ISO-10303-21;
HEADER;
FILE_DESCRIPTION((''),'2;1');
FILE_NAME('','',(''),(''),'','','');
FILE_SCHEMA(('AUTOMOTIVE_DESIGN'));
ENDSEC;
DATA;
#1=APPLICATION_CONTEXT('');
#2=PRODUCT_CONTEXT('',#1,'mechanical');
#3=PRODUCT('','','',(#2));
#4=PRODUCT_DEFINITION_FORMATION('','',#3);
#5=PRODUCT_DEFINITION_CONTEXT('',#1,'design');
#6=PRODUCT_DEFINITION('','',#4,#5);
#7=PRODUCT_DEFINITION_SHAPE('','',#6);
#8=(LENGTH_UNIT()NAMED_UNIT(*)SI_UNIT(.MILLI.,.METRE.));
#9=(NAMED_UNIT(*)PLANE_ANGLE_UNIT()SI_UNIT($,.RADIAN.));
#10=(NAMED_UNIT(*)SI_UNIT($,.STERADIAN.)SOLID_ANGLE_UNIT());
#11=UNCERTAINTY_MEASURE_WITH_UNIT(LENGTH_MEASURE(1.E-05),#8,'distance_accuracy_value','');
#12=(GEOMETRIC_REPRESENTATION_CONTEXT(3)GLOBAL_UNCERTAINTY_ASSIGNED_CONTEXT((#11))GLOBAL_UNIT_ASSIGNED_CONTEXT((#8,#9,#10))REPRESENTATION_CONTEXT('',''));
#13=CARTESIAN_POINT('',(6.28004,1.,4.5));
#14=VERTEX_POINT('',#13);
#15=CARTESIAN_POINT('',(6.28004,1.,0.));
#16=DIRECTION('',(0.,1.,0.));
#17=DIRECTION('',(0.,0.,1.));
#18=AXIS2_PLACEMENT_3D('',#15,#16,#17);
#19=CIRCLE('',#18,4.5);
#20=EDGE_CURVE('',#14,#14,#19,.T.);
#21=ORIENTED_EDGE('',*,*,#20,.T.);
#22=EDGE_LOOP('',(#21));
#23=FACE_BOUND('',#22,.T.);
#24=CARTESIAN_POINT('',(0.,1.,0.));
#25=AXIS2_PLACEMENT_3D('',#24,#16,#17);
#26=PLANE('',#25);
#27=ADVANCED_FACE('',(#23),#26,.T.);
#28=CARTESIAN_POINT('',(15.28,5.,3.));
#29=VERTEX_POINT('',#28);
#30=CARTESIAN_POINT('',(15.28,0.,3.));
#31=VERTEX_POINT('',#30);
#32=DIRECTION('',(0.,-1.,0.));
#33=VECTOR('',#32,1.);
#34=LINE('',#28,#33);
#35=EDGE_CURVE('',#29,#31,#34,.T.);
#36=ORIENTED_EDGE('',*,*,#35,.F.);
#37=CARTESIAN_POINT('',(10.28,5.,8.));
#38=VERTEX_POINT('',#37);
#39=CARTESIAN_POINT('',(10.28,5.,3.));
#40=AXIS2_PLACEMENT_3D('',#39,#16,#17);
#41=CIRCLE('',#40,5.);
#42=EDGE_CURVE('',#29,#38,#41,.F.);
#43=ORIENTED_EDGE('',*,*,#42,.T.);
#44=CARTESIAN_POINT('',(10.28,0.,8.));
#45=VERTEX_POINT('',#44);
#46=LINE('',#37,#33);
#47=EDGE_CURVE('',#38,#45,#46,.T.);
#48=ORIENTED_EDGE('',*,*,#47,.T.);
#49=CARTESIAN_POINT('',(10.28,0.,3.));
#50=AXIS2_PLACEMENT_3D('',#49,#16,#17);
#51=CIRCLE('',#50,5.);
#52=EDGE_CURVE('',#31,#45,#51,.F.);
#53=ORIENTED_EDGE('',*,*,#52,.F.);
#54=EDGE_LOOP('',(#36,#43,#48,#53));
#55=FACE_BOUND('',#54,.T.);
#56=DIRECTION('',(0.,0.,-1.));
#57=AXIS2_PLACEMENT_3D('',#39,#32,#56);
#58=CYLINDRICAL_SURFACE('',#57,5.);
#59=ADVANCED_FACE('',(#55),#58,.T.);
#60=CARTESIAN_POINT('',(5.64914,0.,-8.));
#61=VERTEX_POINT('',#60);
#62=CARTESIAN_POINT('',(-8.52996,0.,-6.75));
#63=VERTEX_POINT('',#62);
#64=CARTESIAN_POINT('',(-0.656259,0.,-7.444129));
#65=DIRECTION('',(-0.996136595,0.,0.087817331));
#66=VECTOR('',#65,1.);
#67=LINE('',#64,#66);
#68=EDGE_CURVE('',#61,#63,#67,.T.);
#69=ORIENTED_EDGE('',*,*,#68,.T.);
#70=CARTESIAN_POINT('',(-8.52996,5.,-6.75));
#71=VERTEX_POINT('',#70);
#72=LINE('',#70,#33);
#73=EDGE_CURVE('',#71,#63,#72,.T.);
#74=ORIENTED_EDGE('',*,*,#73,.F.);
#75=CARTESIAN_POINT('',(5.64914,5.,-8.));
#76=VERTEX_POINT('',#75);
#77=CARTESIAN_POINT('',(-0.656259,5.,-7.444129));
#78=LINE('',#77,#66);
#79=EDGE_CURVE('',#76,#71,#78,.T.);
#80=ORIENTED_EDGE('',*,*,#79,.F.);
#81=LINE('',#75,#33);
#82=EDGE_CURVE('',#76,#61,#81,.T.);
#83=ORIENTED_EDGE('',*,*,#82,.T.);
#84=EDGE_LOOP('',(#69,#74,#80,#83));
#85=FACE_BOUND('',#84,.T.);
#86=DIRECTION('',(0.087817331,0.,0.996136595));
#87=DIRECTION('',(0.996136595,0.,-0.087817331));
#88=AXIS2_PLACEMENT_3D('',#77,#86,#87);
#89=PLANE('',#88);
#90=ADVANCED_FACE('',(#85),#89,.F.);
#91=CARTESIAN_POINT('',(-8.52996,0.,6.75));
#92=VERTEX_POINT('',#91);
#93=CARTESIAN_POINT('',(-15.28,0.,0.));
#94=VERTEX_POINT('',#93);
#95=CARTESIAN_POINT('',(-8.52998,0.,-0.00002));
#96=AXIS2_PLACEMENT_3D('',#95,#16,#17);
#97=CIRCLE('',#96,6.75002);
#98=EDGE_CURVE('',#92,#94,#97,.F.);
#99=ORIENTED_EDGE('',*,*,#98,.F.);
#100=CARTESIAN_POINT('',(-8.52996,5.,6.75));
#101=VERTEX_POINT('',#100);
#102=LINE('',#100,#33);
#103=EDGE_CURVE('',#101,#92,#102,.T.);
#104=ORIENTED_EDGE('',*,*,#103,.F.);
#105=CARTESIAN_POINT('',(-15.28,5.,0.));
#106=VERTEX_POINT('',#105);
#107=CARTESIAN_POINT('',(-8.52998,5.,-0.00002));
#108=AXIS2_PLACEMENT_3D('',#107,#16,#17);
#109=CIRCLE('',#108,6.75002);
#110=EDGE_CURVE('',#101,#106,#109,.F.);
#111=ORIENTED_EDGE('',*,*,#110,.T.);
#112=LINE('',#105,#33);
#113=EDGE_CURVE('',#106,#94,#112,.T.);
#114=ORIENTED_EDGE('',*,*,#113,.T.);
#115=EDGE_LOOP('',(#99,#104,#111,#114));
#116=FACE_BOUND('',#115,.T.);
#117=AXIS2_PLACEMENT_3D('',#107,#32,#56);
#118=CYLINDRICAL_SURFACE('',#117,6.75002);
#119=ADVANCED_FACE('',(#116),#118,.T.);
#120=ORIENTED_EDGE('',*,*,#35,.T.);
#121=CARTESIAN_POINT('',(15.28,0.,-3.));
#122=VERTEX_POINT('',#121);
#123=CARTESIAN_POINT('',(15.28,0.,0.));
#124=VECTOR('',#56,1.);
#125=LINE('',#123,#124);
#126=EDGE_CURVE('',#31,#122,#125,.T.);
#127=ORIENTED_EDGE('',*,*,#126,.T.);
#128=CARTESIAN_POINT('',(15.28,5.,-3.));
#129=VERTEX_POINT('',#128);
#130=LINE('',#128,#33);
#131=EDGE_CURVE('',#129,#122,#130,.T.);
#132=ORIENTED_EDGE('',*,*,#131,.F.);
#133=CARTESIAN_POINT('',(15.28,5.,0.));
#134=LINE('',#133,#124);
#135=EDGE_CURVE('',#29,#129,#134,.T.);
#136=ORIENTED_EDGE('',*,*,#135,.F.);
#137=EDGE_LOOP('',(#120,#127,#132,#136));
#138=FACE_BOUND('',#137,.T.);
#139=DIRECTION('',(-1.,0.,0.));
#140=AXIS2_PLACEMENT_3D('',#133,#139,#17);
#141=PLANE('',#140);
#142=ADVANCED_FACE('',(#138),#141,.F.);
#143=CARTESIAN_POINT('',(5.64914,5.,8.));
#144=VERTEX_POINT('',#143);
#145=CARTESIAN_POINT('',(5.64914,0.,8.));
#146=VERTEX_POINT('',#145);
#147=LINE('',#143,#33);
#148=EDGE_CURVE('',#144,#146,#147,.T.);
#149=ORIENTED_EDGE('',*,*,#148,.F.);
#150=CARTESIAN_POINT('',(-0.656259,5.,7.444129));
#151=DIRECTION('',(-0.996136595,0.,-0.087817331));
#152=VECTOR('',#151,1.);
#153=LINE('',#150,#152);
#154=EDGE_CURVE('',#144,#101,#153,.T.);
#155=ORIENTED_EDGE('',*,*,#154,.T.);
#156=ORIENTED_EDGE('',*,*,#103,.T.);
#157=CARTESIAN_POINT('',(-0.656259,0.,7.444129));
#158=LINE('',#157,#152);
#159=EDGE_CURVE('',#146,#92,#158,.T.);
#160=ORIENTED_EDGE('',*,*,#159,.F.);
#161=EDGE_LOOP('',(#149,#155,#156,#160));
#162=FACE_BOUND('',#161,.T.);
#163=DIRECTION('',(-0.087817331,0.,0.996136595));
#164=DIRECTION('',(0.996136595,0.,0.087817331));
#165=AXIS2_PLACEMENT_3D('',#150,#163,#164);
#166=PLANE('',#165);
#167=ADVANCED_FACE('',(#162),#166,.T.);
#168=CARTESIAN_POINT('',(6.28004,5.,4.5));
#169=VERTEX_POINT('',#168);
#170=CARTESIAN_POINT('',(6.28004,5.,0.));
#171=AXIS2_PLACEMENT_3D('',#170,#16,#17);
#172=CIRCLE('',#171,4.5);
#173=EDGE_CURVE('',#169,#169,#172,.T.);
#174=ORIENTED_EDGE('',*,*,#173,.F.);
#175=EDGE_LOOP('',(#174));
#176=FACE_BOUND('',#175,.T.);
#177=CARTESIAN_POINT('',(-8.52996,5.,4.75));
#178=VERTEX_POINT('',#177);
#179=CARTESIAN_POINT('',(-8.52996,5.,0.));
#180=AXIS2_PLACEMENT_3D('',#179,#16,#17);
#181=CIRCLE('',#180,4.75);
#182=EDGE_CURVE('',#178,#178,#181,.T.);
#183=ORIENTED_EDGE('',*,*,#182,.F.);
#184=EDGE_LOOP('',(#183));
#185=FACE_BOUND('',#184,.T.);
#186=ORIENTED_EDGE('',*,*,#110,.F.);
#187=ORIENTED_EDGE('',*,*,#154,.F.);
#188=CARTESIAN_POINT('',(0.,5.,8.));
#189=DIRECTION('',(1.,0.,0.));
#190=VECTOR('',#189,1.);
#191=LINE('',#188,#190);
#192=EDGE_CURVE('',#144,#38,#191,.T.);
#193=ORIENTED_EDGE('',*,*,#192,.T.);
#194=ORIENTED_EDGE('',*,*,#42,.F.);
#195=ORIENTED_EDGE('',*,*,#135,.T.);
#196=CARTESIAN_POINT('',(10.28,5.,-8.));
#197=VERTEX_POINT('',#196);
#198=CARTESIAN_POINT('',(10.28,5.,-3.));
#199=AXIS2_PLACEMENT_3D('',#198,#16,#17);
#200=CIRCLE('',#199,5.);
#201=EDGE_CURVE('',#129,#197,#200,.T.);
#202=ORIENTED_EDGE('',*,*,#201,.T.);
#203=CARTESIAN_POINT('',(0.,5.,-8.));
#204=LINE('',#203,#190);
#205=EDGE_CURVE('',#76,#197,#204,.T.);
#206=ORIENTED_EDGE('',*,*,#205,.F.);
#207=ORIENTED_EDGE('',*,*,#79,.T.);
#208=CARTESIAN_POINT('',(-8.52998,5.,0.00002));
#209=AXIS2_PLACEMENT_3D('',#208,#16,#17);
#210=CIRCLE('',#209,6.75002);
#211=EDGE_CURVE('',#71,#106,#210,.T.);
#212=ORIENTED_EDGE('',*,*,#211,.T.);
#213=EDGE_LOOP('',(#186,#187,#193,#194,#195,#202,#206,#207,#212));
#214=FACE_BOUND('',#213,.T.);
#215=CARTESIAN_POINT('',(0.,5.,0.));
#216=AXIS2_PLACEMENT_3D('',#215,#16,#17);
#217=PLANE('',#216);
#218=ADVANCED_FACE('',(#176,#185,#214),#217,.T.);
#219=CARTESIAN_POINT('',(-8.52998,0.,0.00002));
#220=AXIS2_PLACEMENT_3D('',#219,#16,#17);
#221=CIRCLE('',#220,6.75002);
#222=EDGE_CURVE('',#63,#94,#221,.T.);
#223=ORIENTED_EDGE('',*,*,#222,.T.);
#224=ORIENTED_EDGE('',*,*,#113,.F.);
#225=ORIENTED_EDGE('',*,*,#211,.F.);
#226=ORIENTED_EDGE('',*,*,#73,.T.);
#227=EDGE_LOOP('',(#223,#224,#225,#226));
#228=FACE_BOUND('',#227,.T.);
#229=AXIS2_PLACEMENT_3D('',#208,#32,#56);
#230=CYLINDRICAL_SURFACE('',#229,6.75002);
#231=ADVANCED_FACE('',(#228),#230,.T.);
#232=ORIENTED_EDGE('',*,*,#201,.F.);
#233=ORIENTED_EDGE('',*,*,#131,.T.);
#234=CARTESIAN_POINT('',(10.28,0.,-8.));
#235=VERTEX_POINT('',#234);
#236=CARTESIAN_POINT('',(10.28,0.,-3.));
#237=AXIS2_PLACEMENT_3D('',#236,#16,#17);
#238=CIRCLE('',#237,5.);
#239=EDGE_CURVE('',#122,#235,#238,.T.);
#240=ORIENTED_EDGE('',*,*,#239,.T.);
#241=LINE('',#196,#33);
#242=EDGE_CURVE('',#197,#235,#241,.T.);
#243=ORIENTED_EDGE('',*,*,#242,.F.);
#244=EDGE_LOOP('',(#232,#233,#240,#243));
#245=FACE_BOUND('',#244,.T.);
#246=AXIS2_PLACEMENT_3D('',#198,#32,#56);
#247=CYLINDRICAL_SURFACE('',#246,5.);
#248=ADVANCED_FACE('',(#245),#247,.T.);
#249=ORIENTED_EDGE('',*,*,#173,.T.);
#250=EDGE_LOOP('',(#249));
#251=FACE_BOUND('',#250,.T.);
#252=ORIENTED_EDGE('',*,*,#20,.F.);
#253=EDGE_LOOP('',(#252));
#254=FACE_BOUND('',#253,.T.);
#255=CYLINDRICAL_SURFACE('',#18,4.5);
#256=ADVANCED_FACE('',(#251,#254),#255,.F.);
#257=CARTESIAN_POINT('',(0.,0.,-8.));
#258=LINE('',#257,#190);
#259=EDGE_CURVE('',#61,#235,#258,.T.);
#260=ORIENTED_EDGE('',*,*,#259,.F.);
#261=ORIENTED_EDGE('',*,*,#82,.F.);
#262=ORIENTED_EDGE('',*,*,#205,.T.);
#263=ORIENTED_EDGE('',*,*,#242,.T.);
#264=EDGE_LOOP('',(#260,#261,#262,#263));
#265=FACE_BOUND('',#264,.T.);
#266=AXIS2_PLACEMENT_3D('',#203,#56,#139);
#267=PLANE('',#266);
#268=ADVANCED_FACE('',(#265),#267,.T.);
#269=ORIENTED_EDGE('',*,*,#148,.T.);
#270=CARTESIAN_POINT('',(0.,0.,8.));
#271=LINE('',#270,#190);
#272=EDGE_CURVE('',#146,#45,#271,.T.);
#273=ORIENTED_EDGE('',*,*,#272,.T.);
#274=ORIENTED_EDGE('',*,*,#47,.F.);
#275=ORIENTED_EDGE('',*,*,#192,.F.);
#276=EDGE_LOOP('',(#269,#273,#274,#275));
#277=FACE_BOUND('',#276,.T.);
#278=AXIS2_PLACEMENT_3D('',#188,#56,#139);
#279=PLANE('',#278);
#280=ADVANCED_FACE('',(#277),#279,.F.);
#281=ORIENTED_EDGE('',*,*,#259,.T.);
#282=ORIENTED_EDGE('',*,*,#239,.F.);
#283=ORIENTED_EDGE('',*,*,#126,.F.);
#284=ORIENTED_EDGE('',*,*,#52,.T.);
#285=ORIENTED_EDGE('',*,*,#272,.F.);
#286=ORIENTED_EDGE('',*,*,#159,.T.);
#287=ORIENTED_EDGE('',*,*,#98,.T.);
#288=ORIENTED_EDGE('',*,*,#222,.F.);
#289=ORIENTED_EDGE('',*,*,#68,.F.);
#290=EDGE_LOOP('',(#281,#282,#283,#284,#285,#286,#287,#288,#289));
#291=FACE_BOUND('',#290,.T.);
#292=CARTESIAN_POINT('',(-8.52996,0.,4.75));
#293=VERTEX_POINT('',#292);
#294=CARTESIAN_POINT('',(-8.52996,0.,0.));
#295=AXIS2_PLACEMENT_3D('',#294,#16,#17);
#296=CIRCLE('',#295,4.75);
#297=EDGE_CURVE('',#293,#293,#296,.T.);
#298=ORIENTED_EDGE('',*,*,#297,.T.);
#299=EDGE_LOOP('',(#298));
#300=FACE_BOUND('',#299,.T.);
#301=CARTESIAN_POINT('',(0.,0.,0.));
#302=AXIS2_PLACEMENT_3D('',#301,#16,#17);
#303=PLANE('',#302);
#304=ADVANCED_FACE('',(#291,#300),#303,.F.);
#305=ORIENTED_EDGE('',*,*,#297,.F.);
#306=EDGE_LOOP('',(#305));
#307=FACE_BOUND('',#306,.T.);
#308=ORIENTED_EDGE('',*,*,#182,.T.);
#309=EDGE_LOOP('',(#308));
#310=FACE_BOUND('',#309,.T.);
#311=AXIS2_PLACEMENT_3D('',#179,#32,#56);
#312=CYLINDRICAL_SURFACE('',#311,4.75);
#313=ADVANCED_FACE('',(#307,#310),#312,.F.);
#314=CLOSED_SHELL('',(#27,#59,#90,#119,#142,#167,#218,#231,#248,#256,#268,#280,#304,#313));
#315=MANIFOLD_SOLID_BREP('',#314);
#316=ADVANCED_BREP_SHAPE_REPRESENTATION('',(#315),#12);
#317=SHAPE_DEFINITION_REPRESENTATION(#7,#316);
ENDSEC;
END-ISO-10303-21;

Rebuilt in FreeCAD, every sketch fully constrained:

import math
import FreeCAD as App
import Part
import Sketcher
from FreeCAD import Vector
Q = App.Units.Quantity

doc = App.newDocument("Part")
body = doc.addObject("PartDesign::Body", "Body")

sketch1 = doc.addObject("Sketcher::SketchObject", "Sketch")
body.addObject(sketch1)
sketch1.AttachmentSupport = (doc.XZ_Plane, [""])
sketch1.MapMode = "FlatFace"
sketch1.addGeometry([
    Part.LineSegment(Vector(10.3, -8, 0), Vector(5.6, -8, 0)),
    Part.LineSegment(Vector(5.6, -8, 0), Vector(-8.5, -6.8, 0)),
    Part.ArcOfCircle(Part.Circle(Vector(-8.5, 0, 0), Vector(0, 0, 1), 6.8), math.radians(-180), math.radians(-90)),
    Part.ArcOfCircle(Part.Circle(Vector(-8.5, 0, 0), Vector(0, 0, 1), 6.8), math.radians(90), math.radians(180)),
    Part.LineSegment(Vector(-8.5, 6.8, 0), Vector(5.6, 8, 0)),
    Part.LineSegment(Vector(5.6, 8, 0), Vector(10.3, 8, 0)),
    Part.ArcOfCircle(Part.Circle(Vector(10.3, 3, 0), Vector(0, 0, 1), 5), math.radians(0), math.radians(90)),
    Part.LineSegment(Vector(15.3, 3, 0), Vector(15.3, -3, 0)),
    Part.ArcOfCircle(Part.Circle(Vector(10.3, -3, 0), Vector(0, 0, 1), 5), math.radians(-90), math.radians(0)),
    Part.Circle(Vector(-8.5, 0, 0), Vector(0, 0, 1), 4.8),
], False)
sketch1.addConstraint([
    Sketcher.Constraint("Coincident", 0, 2, 1, 1),
    Sketcher.Constraint("Coincident", 1, 2, 2, 2),
    Sketcher.Constraint("Coincident", 2, 1, 3, 2),
    Sketcher.Constraint("Coincident", 3, 1, 4, 1),
    Sketcher.Constraint("Coincident", 4, 2, 5, 1),
    Sketcher.Constraint("Tangent", 5, 2, 6, 2),
    Sketcher.Constraint("Tangent", 6, 1, 7, 1),
    Sketcher.Constraint("Tangent", 7, 2, 8, 2),
    Sketcher.Constraint("Tangent", 8, 1, 0, 1),
    Sketcher.Constraint("Horizontal", 0),
    Sketcher.Constraint("Horizontal", 5),
    Sketcher.Constraint("Vertical", 7),
    Sketcher.Constraint("Equal", 2, 3),
    Sketcher.Constraint("Equal", 6, 8),
    Sketcher.Constraint("Symmetric", 1, 2, 3, 1, -1),
    Sketcher.Constraint("Symmetric", 0, 2, 4, 2, -1),
    Sketcher.Constraint("PointOnObject", 9, 3, -1),
    Sketcher.Constraint("PointOnObject", 2, 1, -1),
    Sketcher.Constraint("Vertical", 9, 3, 1, 2),
    Sketcher.Constraint("Radius", 6, Q("5 mm")),
    Sketcher.Constraint("Diameter", 9, Q("9.5 mm")),
    Sketcher.Constraint("DistanceY", 7, 2, 7, 1, Q("6 mm")),
    Sketcher.Constraint("DistanceY", 1, 2, 3, 1, Q("13.5 mm")),
    Sketcher.Constraint("DistanceX", -1, 1, 6, 3, Q("10.28 mm")),
    Sketcher.Constraint("DistanceX", 2, 1, -1, 1, Q("15.28 mm")),
    Sketcher.Constraint("Radius", 2, Q("6.75002 mm")),
    Sketcher.Constraint("DistanceX", 0, 2, 0, 1, Q("4.63086 mm")),
    Sketcher.Constraint("DistanceX", 9, 3, 0, 2, Q("14.1791 mm")),
])
pad1 = doc.addObject("PartDesign::Pad", "Pad")
body.addObject(pad1)
pad1.Profile = sketch1
pad1.Length = 5
pad1.Reversed = True

sketch2 = doc.addObject("Sketcher::SketchObject", "Sketch001")
body.addObject(sketch2)
sketch2.AttachmentSupport = (doc.XZ_Plane, [""])
sketch2.MapMode = "FlatFace"
sketch2.AttachmentOffset = App.Placement(Vector(0, 0, -5), App.Rotation())
sketch2.addGeometry(Part.Circle(Vector(6.3, 0, 0), Vector(0, 0, 1), 4.5), False)
sketch2.addConstraint([
    Sketcher.Constraint("PointOnObject", 0, 3, -1),
    Sketcher.Constraint("Diameter", 0, Q("9 mm")),
    Sketcher.Constraint("DistanceX", -1, 1, 0, 3, Q("6.28004 mm")),
])
pocket1 = doc.addObject("PartDesign::Pocket", "Pocket")
body.addObject(pocket1)
pocket1.Profile = sketch2
pocket1.Length = 4
pocket1.Reversed = True

doc.recompute()
